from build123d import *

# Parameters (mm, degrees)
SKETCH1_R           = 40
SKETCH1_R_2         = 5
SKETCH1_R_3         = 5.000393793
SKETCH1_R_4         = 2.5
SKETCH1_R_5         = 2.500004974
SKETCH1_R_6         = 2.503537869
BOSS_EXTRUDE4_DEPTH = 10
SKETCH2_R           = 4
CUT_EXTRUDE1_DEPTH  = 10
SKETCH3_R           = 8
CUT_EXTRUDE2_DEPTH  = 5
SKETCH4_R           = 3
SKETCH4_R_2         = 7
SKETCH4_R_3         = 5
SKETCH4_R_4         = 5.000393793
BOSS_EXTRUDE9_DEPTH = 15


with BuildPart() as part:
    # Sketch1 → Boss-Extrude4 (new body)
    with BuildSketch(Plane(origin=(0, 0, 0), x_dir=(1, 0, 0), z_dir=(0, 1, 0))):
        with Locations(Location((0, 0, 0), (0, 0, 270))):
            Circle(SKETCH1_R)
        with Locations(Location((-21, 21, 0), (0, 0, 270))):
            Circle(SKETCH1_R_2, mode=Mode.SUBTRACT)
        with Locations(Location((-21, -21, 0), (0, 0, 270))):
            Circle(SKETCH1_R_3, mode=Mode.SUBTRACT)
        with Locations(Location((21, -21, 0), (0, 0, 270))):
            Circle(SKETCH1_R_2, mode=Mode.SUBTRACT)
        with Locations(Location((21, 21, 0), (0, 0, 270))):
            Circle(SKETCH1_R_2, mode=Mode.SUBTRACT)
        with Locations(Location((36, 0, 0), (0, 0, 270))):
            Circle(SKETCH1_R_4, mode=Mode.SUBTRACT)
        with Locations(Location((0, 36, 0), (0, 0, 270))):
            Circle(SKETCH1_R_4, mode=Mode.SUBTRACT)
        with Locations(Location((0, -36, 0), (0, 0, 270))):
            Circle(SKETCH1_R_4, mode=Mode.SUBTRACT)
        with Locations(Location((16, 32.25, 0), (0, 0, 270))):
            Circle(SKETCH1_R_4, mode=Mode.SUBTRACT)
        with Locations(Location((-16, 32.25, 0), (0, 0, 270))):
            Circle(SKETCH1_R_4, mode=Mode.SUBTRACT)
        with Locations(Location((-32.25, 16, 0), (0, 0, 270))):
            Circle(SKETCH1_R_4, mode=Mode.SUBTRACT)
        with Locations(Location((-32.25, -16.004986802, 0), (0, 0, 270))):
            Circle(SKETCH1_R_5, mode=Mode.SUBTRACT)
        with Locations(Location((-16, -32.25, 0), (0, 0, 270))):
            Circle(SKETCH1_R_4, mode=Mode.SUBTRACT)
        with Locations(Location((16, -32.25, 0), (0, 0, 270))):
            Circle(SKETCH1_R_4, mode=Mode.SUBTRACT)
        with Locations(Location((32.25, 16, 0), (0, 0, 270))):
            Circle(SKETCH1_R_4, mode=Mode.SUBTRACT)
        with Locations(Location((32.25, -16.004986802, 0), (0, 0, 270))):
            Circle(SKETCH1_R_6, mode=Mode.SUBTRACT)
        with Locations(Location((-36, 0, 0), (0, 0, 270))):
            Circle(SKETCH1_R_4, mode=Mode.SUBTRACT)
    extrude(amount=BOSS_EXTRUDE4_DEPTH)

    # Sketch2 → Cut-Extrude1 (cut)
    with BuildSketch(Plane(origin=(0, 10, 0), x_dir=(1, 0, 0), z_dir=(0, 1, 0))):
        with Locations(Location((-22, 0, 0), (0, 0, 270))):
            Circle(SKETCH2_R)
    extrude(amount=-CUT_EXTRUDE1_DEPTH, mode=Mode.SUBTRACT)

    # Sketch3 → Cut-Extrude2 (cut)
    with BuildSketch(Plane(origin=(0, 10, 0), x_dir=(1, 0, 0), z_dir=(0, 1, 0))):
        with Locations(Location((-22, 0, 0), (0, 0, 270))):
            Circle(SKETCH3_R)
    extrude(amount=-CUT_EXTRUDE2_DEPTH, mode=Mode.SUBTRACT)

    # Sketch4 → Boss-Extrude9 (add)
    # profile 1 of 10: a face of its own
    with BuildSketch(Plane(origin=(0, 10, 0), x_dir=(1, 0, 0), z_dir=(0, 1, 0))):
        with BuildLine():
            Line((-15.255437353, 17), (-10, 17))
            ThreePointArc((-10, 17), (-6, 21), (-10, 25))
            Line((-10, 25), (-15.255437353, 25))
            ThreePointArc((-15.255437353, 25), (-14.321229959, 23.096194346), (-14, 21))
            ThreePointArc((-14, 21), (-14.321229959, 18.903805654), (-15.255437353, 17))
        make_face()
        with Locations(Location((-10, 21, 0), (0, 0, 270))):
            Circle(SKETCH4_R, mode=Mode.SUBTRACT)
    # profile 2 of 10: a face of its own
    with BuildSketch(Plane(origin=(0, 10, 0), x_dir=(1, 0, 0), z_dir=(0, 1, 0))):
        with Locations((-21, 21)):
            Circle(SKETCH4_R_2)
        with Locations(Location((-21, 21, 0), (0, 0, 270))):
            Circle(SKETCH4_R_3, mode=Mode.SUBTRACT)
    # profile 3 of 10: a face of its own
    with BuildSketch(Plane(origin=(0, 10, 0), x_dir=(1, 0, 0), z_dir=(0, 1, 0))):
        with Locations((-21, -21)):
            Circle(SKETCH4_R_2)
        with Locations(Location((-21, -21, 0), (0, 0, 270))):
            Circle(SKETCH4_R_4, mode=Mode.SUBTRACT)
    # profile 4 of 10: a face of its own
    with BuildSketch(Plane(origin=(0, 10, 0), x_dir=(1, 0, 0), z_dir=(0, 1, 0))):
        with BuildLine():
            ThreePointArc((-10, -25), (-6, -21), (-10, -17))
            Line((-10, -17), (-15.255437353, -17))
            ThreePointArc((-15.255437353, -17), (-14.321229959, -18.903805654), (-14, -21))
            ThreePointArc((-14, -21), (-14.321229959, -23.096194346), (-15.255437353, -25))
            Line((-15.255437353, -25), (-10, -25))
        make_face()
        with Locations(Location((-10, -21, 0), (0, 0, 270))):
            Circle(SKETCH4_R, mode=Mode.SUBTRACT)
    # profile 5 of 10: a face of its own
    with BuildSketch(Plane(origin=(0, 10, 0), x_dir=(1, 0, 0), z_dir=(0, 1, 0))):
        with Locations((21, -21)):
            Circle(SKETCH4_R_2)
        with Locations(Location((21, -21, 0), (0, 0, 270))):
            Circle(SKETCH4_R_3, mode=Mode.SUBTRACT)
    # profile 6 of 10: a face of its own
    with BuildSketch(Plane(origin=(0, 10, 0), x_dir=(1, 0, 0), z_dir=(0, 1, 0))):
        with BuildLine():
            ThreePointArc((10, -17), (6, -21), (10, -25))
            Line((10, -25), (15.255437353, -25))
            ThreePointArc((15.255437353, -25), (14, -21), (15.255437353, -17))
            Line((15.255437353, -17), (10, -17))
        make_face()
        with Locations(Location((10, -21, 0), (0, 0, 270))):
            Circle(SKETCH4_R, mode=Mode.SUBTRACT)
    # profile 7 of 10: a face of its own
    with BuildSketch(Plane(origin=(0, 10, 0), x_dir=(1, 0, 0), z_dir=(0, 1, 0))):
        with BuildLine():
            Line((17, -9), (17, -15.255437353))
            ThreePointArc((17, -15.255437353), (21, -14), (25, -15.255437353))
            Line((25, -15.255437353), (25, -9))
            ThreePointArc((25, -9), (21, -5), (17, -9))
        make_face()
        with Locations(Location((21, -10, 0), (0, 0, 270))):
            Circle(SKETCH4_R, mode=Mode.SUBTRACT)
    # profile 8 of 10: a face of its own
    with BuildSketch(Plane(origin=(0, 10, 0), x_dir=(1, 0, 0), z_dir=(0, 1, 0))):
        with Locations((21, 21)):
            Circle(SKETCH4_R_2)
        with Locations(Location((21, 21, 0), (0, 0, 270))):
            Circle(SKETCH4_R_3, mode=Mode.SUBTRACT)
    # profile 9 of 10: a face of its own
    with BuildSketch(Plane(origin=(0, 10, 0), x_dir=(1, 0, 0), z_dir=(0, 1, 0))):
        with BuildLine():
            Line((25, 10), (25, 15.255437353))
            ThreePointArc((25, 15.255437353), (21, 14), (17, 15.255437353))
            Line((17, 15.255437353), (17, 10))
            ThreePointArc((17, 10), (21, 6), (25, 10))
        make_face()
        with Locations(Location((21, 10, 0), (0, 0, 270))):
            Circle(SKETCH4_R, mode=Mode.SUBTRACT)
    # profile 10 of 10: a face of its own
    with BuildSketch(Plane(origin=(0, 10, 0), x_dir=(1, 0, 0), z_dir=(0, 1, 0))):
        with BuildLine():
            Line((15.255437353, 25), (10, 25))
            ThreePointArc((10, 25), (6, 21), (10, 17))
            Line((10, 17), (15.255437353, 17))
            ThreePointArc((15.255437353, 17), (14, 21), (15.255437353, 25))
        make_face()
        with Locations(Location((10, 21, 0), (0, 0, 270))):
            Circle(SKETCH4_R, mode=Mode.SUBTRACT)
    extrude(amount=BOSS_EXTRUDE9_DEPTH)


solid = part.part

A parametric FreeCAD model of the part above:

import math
import FreeCAD as App
import Part
import Sketcher
from FreeCAD import Vector

doc = App.newDocument("Part")
params = doc.addObject("Spreadsheet::Sheet", "Params")
for row, (alias, value) in enumerate([
    ("sketch1_diameter", "80 mm"),
    ("sketch1_diameter2", "10 mm"),
    ("sketch1_diameter3", "5 mm"),
    ("pad1_length", "10 mm"),
    ("sketch2_diameter", "8 mm"),
    ("pocket1_length", "10 mm"),
    ("sketch3_diameter", "16 mm"),
    ("pocket2_length", "5 mm"),
    ("sketch4_diameter", "6 mm"),
    ("sketch4_diameter2", "10 mm"),
    ("sketch4_radius", "4 mm"),
    ("sketch4_radius2", "7 mm"),
    ("pad2_length", "15 mm"),
], start=1):
    params.set(f"A{row}", alias)
    params.set(f"B{row}", "=" + value)
    params.setAlias(f"B{row}", alias)

body = doc.addObject("PartDesign::Body", "Body")

# Sketch on XZ plane
sketch1 = body.newObject("Sketcher::SketchObject", "Sketch")
sketch1.AttachmentSupport = (doc.getObject("XZ_Plane"), [""])
sketch1.MapMode = "FlatFace"
sketch1.addGeometry([
    Part.Circle(Vector(0, 0, 0), Vector(0, 0, 1), 40),  # 0
    Part.Circle(Vector(-21, -21, 0), Vector(0, 0, 1), 5),  # 1
    Part.Circle(Vector(-32.2, -16, 0), Vector(0, 0, 1), 2.5),  # 2
    Part.Circle(Vector(-16, -32.2, 0), Vector(0, 0, 1), 2.5),  # 3
    Part.Circle(Vector(0, -36, 0), Vector(0, 0, 1), 2.5),  # 4
    Part.Circle(Vector(-36, 0, 0), Vector(0, 0, 1), 2.5),  # 5
    Part.Circle(Vector(-32.2, 16, 0), Vector(0, 0, 1), 2.5),  # 6
    Part.Circle(Vector(-21, 21, 0), Vector(0, 0, 1), 5),  # 7
    Part.Circle(Vector(-16, 32.2, 0), Vector(0, 0, 1), 2.5),  # 8
    Part.Circle(Vector(16, -32.2, 0), Vector(0, 0, 1), 2.5),  # 9
    Part.Circle(Vector(21, -21, 0), Vector(0, 0, 1), 5),  # 10
    Part.Circle(Vector(32.2, -16, 0), Vector(0, 0, 1), 2.5),  # 11
    Part.Circle(Vector(36, 0, 0), Vector(0, 0, 1), 2.5),  # 12
    Part.Circle(Vector(0, 36, 0), Vector(0, 0, 1), 2.5),  # 13
    Part.Circle(Vector(16, 32.2, 0), Vector(0, 0, 1), 2.5),  # 14
    Part.Circle(Vector(32.2, 16, 0), Vector(0, 0, 1), 2.5),  # 15
    Part.Circle(Vector(21, 21, 0), Vector(0, 0, 1), 5),  # 16
], False)
sketch1.addConstraint([
    Sketcher.Constraint("Coincident", 0, 3, -1, 1),
    Sketcher.Constraint("Equal", 2, 3),
    Sketcher.Constraint("Equal", 3, 4),
    Sketcher.Constraint("Equal", 4, 5),
    Sketcher.Constraint("Equal", 5, 8),
    Sketcher.Constraint("Equal", 8, 9),
    Sketcher.Constraint("Equal", 1, 10),
    Sketcher.Constraint("Equal", 9, 11),
    Sketcher.Constraint("Equal", 11, 12),
    Sketcher.Constraint("Equal", 12, 13),
    Sketcher.Constraint("Equal", 13, 14),
    Sketcher.Constraint("Equal", 10, 16),
    Sketcher.Constraint("Symmetric", 8, 3, 9, 3, -1, 1),
    Sketcher.Constraint("Symmetric", 7, 3, 10, 3, -1, 1),
    Sketcher.Constraint("Symmetric", 5, 3, 12, 3, -1, 1),
    Sketcher.Constraint("Symmetric", 4, 3, 13, 3, -1, 1),
    Sketcher.Constraint("Symmetric", 3, 3, 14, 3, -1, 1),
    Sketcher.Constraint("Symmetric", 1, 3, 16, 3, -1, 1),
    Sketcher.Constraint("Symmetric", 3, 3, 9, 3, -2),
    Sketcher.Constraint("Symmetric", 1, 3, 10, 3, -2),
    Sketcher.Constraint("Symmetric", 2, 3, 11, 3, -2),
    Sketcher.Constraint("Symmetric", 6, 3, 15, 3, -2),
    Sketcher.Constraint("PointOnObject", 4, 3, -2),
    Sketcher.Constraint("PointOnObject", 5, 3, -1),
    Sketcher.Constraint("Vertical", 2, 3, 6, 3),
    Sketcher.Constraint("Diameter", 0, 80.0),
    Sketcher.Constraint("Diameter", 1, 10.0),
    Sketcher.Constraint("Diameter", 2, 5.0),
    Sketcher.Constraint("DistanceX", 1, 3, -1, 1, 21.0),
    Sketcher.Constraint("DistanceY", 1, 3, -1, 1, 21.0),
    Sketcher.Constraint("DistanceY", 2, 3, -1, 1, 16.0),
    Sketcher.Constraint("DistanceX", 3, 3, -1, 1, 16.0),
    Sketcher.Constraint("DistanceY", 4, 3, -1, 1, 36.0),
    Sketcher.Constraint("DistanceX", 5, 3, -1, 1, 36.0),
    Sketcher.Constraint("Diameter", 6, 5.00001),
    Sketcher.Constraint("DistanceX", 2, 3, -1, 1, 32.25),
    Sketcher.Constraint("DistanceY", 3, 3, -1, 1, 32.25),
    Sketcher.Constraint("Diameter", 7, 10.000788),
    Sketcher.Constraint("Diameter", 15, 5.007076),
    Sketcher.Constraint("DistanceY", -1, 1, 6, 3, 16.004987),
])
sketch1.setExpression("Constraints[25]", "Params.sketch1_diameter")
sketch1.setExpression("Constraints[26]", "Params.sketch1_diameter2")
sketch1.setExpression("Constraints[27]", "Params.sketch1_diameter3")
pad1 = body.newObject("PartDesign::Pad", "Pad")
pad1.Profile = sketch1
pad1.setExpression("Length", "Params.pad1_length")
pad1.Reversed = True

# Sketch on XZ plane
sketch2 = body.newObject("Sketcher::SketchObject", "Sketch001")
sketch2.AttachmentSupport = (doc.getObject("XZ_Plane"), [""])
sketch2.MapMode = "FlatFace"
sketch2.AttachmentOffset = App.Placement(Vector(0, 0, -10), App.Rotation())
sketch2.addGeometry(Part.Circle(Vector(-22, 0, 0), Vector(0, 0, 1), 4), False)
sketch2.addConstraint([
    Sketcher.Constraint("PointOnObject", 0, 3, -1),
    Sketcher.Constraint("Diameter", 0, 8.0),
    Sketcher.Constraint("DistanceX", 0, 3, -1, 1, 22.0),
])
sketch2.setExpression("Constraints[1]", "Params.sketch2_diameter")
pocket1 = body.newObject("PartDesign::Pocket", "Pocket")
pocket1.Profile = sketch2
pocket1.setExpression("Length", "Params.pocket1_length")
pocket1.Reversed = True

# Sketch on XZ plane
sketch3 = body.newObject("Sketcher::SketchObject", "Sketch002")
sketch3.AttachmentSupport = (doc.getObject("XZ_Plane"), [""])
sketch3.MapMode = "FlatFace"
sketch3.AttachmentOffset = App.Placement(Vector(0, 0, -10), App.Rotation())
sketch3.addGeometry(Part.Circle(Vector(-22, 0, 0), Vector(0, 0, 1), 8), False)
sketch3.addConstraint([
    Sketcher.Constraint("PointOnObject", 0, 3, -1),
    Sketcher.Constraint("Diameter", 0, 16.0),
    Sketcher.Constraint("DistanceX", 0, 3, -1, 1, 22.0),
])
sketch3.setExpression("Constraints[1]", "Params.sketch3_diameter")
pocket2 = body.newObject("PartDesign::Pocket", "Pocket001")
pocket2.Profile = sketch3
pocket2.setExpression("Length", "Params.pocket2_length")
pocket2.Reversed = True

# Sketch on XZ plane
sketch4 = body.newObject("Sketcher::SketchObject", "Sketch003")
sketch4.AttachmentSupport = (doc.getObject("XZ_Plane"), [""])
sketch4.MapMode = "FlatFace"
sketch4.AttachmentOffset = App.Placement(Vector(0, 0, -10), App.Rotation())
sketch4.addGeometry([
    Part.LineSegment(Vector(-15.3, -17, 0), Vector(-10, -17, 0)),  # 0
    Part.ArcOfCircle(Part.Circle(Vector(-10, -21, 0), Vector(0, 0, 1), 4), math.radians(-90), math.radians(90)),  # 1
    Part.LineSegment(Vector(-10, -25, 0), Vector(-15.3, -25, 0)),  # 2
    Part.ArcOfCircle(Part.Circle(Vector(-21, -21, 0), Vector(0, 0, 1), 7), math.radians(35), math.radians(325)),  # 3
    Part.Circle(Vector(-10, -21, 0), Vector(0, 0, 1), 3),  # 4
    Part.Circle(Vector(-21, -21, 0), Vector(0, 0, 1), 5),  # 5
    Part.ArcOfCircle(Part.Circle(Vector(-21, 21, 0), Vector(0, 0, 1), 7), math.radians(35), math.radians(325)),  # 6
    Part.LineSegment(Vector(-15.3, 25, 0), Vector(-10, 25, 0)),  # 7
    Part.ArcOfCircle(Part.Circle(Vector(-10, 21, 0), Vector(0, 0, 1), 4), math.radians(-90), math.radians(90)),  # 8
    Part.LineSegment(Vector(-10, 17, 0), Vector(-15.3, 17, 0)),  # 9
    Part.Circle(Vector(-21, 21, 0), Vector(0, 0, 1), 5),  # 10
    Part.Circle(Vector(-10, 21, 0), Vector(0, 0, 1), 3),  # 11
    Part.LineSegment(Vector(25, 15.3, 0), Vector(25, 9, 0)),  # 12
    Part.ArcOfCircle(Part.Circle(Vector(21, 9, 0), Vector(0, 0, 1), 4), math.radians(180), math.radians(360)),  # 13
    Part.LineSegment(Vector(17, 9, 0), Vector(17, 15.3, 0)),  # 14
    Part.ArcOfCircle(Part.Circle(Vector(21, 21, 0), Vector(0, 0, 1), 7), math.radians(-145), math.radians(-125)),  # 15
    Part.LineSegment(Vector(15.3, 17, 0), Vector(10, 17, 0)),  # 16
    Part.ArcOfCircle(Part.Circle(Vector(10, 21, 0), Vector(0, 0, 1), 4), math.radians(90), math.radians(270)),  # 17
    Part.LineSegment(Vector(10, 25, 0), Vector(15.3, 25, 0)),  # 18
    Part.ArcOfCircle(Part.Circle(Vector(21, 21, 0), Vector(0, 0, 1), 7), math.radians(-55), math.radians(145)),  # 19
    Part.Circle(Vector(21, 21, 0), Vector(0, 0, 1), 5),  # 20
    Part.Circle(Vector(21, 10, 0), Vector(0, 0, 1), 3),  # 21
    Part.Circle(Vector(10, 21, 0), Vector(0, 0, 1), 3),  # 22
    Part.LineSegment(Vector(15.3, -25, 0), Vector(10, -25, 0)),  # 23
    Part.ArcOfCircle(Part.Circle(Vector(10, -21, 0), Vector(0, 0, 1), 4), math.radians(90), math.radians(270)),  # 24
    Part.LineSegment(Vector(10, -17, 0), Vector(15.3, -17, 0)),  # 25
    Part.ArcOfCircle(Part.Circle(Vector(21, -21, 0), Vector(0, 0, 1), 7), math.radians(125), math.radians(145)),  # 26
    Part.LineSegment(Vector(17, -15.3, 0), Vector(17, -10, 0)),  # 27
    Part.ArcOfCircle(Part.Circle(Vector(21, -10, 0), Vector(0, 0, 1), 4), math.radians(0), math.radians(180)),  # 28
    Part.LineSegment(Vector(25, -10, 0), Vector(25, -15.3, 0)),  # 29
    Part.ArcOfCircle(Part.Circle(Vector(21, -21, 0), Vector(0, 0, 1), 7), math.radians(-145), math.radians(55)),  # 30
    Part.Circle(Vector(21, -21, 0), Vector(0, 0, 1), 5),  # 31
    Part.Circle(Vector(10, -21, 0), Vector(0, 0, 1), 3),  # 32
    Part.Circle(Vector(21, -10, 0), Vector(0, 0, 1), 3),  # 33
], False)
sketch4.addConstraint([
    Sketcher.Constraint("Tangent", 0, 2, 1, 2),
    Sketcher.Constraint("Tangent", 1, 1, 2, 1),
    Sketcher.Constraint("Coincident", 2, 2, 3, 2),
    Sketcher.Constraint("Coincident", 3, 1, 0, 1),
    Sketcher.Constraint("Coincident", 6, 1, 7, 1),
    Sketcher.Constraint("Tangent", 7, 2, 8, 2),
    Sketcher.Constraint("Tangent", 8, 1, 9, 1),
    Sketcher.Constraint("Coincident", 9, 2, 6, 2),
    Sketcher.Constraint("Tangent", 12, 2, 13, 2),
    Sketcher.Constraint("Tangent", 13, 1, 14, 1),
    Sketcher.Constraint("Coincident", 14, 2, 15, 2),
    Sketcher.Constraint("Coincident", 15, 1, 16, 1),
    Sketcher.Constraint("Tangent", 16, 2, 17, 2),
    Sketcher.Constraint("Tangent", 17, 1, 18, 1),
    Sketcher.Constraint("Coincident", 18, 2, 19, 2),
    Sketcher.Constraint("Coincident", 19, 1, 12, 1),
    Sketcher.Constraint("Tangent", 23, 2, 24, 2),
    Sketcher.Constraint("Tangent", 24, 1, 25, 1),
    Sketcher.Constraint("Coincident", 25, 2, 26, 2),
    Sketcher.Constraint("Coincident", 26, 1, 27, 1),
    Sketcher.Constraint("Tangent", 27, 2, 28, 2),
    Sketcher.Constraint("Tangent", 28, 1, 29, 1),
    Sketcher.Constraint("Coincident", 29, 2, 30, 2),
    Sketcher.Constraint("Coincident", 30, 1, 23, 1),
    Sketcher.Constraint("Horizontal", 0),
    Sketcher.Constraint("Horizontal", 2),
    Sketcher.Constraint("Horizontal", 7),
    Sketcher.Constraint("Horizontal", 9),
    Sketcher.Constraint("Vertical", 12),
    Sketcher.Constraint("Vertical", 14),
    Sketcher.Constraint("Horizontal", 16),
    Sketcher.Constraint("Horizontal", 18),
    Sketcher.Constraint("Horizontal", 23),
    Sketcher.Constraint("Horizontal", 25),
    Sketcher.Constraint("Vertical", 27),
    Sketcher.Constraint("Vertical", 29),
    Sketcher.Constraint("Coincident", 4, 3, 1, 3),
    Sketcher.Constraint("Coincident", 5, 3, 3, 3),
    Sketcher.Constraint("Coincident", 10, 3, 6, 3),
    Sketcher.Constraint("Coincident", 11, 3, 8, 3),
    Sketcher.Constraint("Coincident", 19, 3, 15, 3),
    Sketcher.Constraint("Coincident", 20, 3, 15, 3),
    Sketcher.Constraint("Coincident", 22, 3, 17, 3),
    Sketcher.Constraint("Coincident", 30, 3, 26, 3),
    Sketcher.Constraint("Coincident", 31, 3, 26, 3),
    Sketcher.Constraint("Coincident", 32, 3, 24, 3),
    Sketcher.Constraint("Coincident", 33, 3, 28, 3),
    Sketcher.Constraint("Equal", 3, 6),
    Sketcher.Constraint("Equal", 1, 8),
    Sketcher.Constraint("Equal", 4, 11),
    Sketcher.Constraint("Equal", 8, 13),
    Sketcher.Constraint("Equal", 6, 15),
    Sketcher.Constraint("Equal", 13, 17),
    Sketcher.Constraint("Equal", 15, 19),
    Sketcher.Constraint("Equal", 5, 20),
    Sketcher.Constraint("Equal", 11, 21),
    Sketcher.Constraint("Equal", 21, 22),
    Sketcher.Constraint("Equal", 17, 24),
    Sketcher.Constraint("Equal", 19, 26),
    Sketcher.Constraint("Equal", 24, 28),
    Sketcher.Constraint("Equal", 26, 30),
    Sketcher.Constraint("Equal", 20, 31),
    Sketcher.Constraint("Equal", 22, 32),
    Sketcher.Constraint("Equal", 32, 33),
    Sketcher.Constraint("Symmetric", 3, 3, 15, 3, -1, 1),
    Sketcher.Constraint("Symmetric", 1, 3, 17, 3, -1, 1),
    Sketcher.Constraint("Symmetric", 8, 3, 24, 3, -1, 1),
    Sketcher.Constraint("Symmetric", 6, 3, 26, 3, -1, 1),
    Sketcher.Constraint("Symmetric", 6, 3, 15, 3, -2),
    Sketcher.Constraint("Symmetric", 8, 3, 17, 3, -2),
    Sketcher.Constraint("Symmetric", 21, 3, 28, 3, -1),
    Sketcher.Constraint("Horizontal", 1, 3, 3, 3),
    Sketcher.Constraint("Horizontal", 14, 2, 19, 1),
    Sketcher.Constraint("Horizontal", 26, 1, 29, 2),
    Sketcher.Constraint("Equal", 25, 27),
    Sketcher.Constraint("Diameter", 4, 6.0),
    Sketcher.Constraint("Diameter", 5, 10.0),
    Sketcher.Constraint("Radius", 1, 4.0),
    Sketcher.Constraint("Radius", 3, 7.0),
    Sketcher.Constraint("DistanceX", 1, 3, -1, 1, 10.0),
    Sketcher.Constraint("DistanceY", 1, 3, -1, 1, 21.0),
    Sketcher.Constraint("DistanceX", 3, 3, -1, 1, 21.0),
    Sketcher.Constraint("DistanceY", -1, 1, 13, 3, 9.0),
    Sketcher.Constraint("Diameter", 10, 10.000788),
])
sketch4.setExpression("Constraints[75]", "Params.sketch4_diameter")
sketch4.setExpression("Constraints[76]", "Params.sketch4_diameter2")
sketch4.setExpression("Constraints[77]", "Params.sketch4_radius")
sketch4.setExpression("Constraints[78]", "Params.sketch4_radius2")
pad2 = body.newObject("PartDesign::Pad", "Pad001")
pad2.Profile = sketch4
pad2.setExpression("Length", "Params.pad2_length")
pad2.Reversed = True

doc.recompute()
